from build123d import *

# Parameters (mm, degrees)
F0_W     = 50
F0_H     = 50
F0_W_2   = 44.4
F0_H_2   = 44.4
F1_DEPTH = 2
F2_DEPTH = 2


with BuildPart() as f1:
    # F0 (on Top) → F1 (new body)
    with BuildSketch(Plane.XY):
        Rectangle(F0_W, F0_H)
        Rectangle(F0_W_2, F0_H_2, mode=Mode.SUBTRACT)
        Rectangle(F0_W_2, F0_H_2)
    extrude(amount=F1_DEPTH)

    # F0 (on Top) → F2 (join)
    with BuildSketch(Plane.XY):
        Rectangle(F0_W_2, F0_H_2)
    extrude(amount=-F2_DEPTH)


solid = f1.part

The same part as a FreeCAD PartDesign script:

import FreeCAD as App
import Part
import Sketcher
from FreeCAD import Vector
Q = App.Units.Quantity

doc = App.newDocument("Part")
body = doc.addObject("PartDesign::Body", "Body")

sketch1 = body.newObject("Sketcher::SketchObject", "Sketch")
sketch1.AttachmentSupport = (doc.getObject("XY_Plane"), [""])
sketch1.MapMode = "FlatFace"
sketch1.addGeometry([
    Part.LineSegment(Vector(-25, 25, 0), Vector(-25, -25, 0)),
    Part.LineSegment(Vector(-25, -25, 0), Vector(25, -25, 0)),
    Part.LineSegment(Vector(25, -25, 0), Vector(25, 25, 0)),
    Part.LineSegment(Vector(25, 25, 0), Vector(-25, 25, 0)),
], False)
sketch1.addConstraint([
    Sketcher.Constraint("Coincident", 0, 2, 1, 1),
    Sketcher.Constraint("Coincident", 1, 2, 2, 1),
    Sketcher.Constraint("Coincident", 2, 2, 3, 1),
    Sketcher.Constraint("Coincident", 3, 2, 0, 1),
    Sketcher.Constraint("Vertical", 0),
    Sketcher.Constraint("Horizontal", 1),
    Sketcher.Constraint("Vertical", 2),
    Sketcher.Constraint("Horizontal", 3),
    Sketcher.Constraint("Symmetric", 0, 2, 2, 2, -1, 1),
    Sketcher.Constraint("Equal", 3, 0),
    Sketcher.Constraint("DistanceX", 1, 1, 1, 2, Q("50 mm")),
])
pad1 = body.newObject("PartDesign::Pad", "Pad")
pad1.Profile = sketch1
pad1.Length = 2

sketch2 = body.newObject("Sketcher::SketchObject", "Sketch001")
sketch2.AttachmentSupport = (doc.getObject("XY_Plane"), [""])
sketch2.MapMode = "FlatFace"
sketch2.addGeometry([
    Part.LineSegment(Vector(-22, 22, 0), Vector(-22, -22, 0)),
    Part.LineSegment(Vector(-22, -22, 0), Vector(22, -22, 0)),
    Part.LineSegment(Vector(22, -22, 0), Vector(22, 22, 0)),
    Part.LineSegment(Vector(22, 22, 0), Vector(-22, 22, 0)),
], False)
sketch2.addConstraint([
    Sketcher.Constraint("Coincident", 0, 2, 1, 1),
    Sketcher.Constraint("Coincident", 1, 2, 2, 1),
    Sketcher.Constraint("Coincident", 2, 2, 3, 1),
    Sketcher.Constraint("Coincident", 3, 2, 0, 1),
    Sketcher.Constraint("Vertical", 0),
    Sketcher.Constraint("Horizontal", 1),
    Sketcher.Constraint("Vertical", 2),
    Sketcher.Constraint("Horizontal", 3),
    Sketcher.Constraint("Symmetric", 0, 2, 2, 2, -1, 1),
    Sketcher.Constraint("Equal", 3, 0),
    Sketcher.Constraint("DistanceX", 1, 1, 1, 2, Q("44.4 mm")),
])
pad2 = body.newObject("PartDesign::Pad", "Pad001")
pad2.Profile = sketch2
pad2.Length = 2
pad2.Reversed = True

doc.recompute()
